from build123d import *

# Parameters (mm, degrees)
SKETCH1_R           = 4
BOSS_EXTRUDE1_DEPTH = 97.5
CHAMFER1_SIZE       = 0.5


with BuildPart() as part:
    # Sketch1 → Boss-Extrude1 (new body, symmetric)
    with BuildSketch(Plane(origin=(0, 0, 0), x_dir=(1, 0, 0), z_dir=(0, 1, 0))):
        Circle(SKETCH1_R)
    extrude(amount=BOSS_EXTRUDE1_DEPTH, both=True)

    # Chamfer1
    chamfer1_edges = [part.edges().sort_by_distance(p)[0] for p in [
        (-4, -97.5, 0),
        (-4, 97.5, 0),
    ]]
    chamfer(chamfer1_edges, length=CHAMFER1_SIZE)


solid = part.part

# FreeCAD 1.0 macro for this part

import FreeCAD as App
import Part
import Sketcher
from FreeCAD import Vector
Q = App.Units.Quantity


def edges_at(feature, points):
    """Names of the edges that pass closest to the given points."""
    edges = feature.Shape.Edges
    near = lambda p: min(range(len(edges)), key=lambda i: edges[i].distToShape(Part.Vertex(*p))[0])
    return sorted({f"Edge{near(p) + 1}" for p in points})

doc = App.newDocument("Part")
body = doc.addObject("PartDesign::Body", "Body")

sketch1 = body.newObject("Sketcher::SketchObject", "Sketch")
sketch1.AttachmentSupport = (doc.getObject("XZ_Plane"), [""])
sketch1.MapMode = "FlatFace"
sketch1.addGeometry(Part.Circle(Vector(0, 0, 0), Vector(0, 0, 1), 4), False)
sketch1.addConstraint([
    Sketcher.Constraint("Coincident", 0, 3, -1, 1),
    Sketcher.Constraint("Diameter", 0, Q("8 mm")),
])
pad1 = body.newObject("PartDesign::Pad", "Pad")
pad1.Profile = sketch1
pad1.Length = 195
pad1.Midplane = True
doc.recompute()

chamfer = body.newObject("PartDesign::Chamfer", "Chamfer")
chamfer.Base = (pad1, edges_at(pad1, [(-4, -97.5, 0), (-4, 97.5, 0)]))
chamfer.Size = 0.5

doc.recompute()
